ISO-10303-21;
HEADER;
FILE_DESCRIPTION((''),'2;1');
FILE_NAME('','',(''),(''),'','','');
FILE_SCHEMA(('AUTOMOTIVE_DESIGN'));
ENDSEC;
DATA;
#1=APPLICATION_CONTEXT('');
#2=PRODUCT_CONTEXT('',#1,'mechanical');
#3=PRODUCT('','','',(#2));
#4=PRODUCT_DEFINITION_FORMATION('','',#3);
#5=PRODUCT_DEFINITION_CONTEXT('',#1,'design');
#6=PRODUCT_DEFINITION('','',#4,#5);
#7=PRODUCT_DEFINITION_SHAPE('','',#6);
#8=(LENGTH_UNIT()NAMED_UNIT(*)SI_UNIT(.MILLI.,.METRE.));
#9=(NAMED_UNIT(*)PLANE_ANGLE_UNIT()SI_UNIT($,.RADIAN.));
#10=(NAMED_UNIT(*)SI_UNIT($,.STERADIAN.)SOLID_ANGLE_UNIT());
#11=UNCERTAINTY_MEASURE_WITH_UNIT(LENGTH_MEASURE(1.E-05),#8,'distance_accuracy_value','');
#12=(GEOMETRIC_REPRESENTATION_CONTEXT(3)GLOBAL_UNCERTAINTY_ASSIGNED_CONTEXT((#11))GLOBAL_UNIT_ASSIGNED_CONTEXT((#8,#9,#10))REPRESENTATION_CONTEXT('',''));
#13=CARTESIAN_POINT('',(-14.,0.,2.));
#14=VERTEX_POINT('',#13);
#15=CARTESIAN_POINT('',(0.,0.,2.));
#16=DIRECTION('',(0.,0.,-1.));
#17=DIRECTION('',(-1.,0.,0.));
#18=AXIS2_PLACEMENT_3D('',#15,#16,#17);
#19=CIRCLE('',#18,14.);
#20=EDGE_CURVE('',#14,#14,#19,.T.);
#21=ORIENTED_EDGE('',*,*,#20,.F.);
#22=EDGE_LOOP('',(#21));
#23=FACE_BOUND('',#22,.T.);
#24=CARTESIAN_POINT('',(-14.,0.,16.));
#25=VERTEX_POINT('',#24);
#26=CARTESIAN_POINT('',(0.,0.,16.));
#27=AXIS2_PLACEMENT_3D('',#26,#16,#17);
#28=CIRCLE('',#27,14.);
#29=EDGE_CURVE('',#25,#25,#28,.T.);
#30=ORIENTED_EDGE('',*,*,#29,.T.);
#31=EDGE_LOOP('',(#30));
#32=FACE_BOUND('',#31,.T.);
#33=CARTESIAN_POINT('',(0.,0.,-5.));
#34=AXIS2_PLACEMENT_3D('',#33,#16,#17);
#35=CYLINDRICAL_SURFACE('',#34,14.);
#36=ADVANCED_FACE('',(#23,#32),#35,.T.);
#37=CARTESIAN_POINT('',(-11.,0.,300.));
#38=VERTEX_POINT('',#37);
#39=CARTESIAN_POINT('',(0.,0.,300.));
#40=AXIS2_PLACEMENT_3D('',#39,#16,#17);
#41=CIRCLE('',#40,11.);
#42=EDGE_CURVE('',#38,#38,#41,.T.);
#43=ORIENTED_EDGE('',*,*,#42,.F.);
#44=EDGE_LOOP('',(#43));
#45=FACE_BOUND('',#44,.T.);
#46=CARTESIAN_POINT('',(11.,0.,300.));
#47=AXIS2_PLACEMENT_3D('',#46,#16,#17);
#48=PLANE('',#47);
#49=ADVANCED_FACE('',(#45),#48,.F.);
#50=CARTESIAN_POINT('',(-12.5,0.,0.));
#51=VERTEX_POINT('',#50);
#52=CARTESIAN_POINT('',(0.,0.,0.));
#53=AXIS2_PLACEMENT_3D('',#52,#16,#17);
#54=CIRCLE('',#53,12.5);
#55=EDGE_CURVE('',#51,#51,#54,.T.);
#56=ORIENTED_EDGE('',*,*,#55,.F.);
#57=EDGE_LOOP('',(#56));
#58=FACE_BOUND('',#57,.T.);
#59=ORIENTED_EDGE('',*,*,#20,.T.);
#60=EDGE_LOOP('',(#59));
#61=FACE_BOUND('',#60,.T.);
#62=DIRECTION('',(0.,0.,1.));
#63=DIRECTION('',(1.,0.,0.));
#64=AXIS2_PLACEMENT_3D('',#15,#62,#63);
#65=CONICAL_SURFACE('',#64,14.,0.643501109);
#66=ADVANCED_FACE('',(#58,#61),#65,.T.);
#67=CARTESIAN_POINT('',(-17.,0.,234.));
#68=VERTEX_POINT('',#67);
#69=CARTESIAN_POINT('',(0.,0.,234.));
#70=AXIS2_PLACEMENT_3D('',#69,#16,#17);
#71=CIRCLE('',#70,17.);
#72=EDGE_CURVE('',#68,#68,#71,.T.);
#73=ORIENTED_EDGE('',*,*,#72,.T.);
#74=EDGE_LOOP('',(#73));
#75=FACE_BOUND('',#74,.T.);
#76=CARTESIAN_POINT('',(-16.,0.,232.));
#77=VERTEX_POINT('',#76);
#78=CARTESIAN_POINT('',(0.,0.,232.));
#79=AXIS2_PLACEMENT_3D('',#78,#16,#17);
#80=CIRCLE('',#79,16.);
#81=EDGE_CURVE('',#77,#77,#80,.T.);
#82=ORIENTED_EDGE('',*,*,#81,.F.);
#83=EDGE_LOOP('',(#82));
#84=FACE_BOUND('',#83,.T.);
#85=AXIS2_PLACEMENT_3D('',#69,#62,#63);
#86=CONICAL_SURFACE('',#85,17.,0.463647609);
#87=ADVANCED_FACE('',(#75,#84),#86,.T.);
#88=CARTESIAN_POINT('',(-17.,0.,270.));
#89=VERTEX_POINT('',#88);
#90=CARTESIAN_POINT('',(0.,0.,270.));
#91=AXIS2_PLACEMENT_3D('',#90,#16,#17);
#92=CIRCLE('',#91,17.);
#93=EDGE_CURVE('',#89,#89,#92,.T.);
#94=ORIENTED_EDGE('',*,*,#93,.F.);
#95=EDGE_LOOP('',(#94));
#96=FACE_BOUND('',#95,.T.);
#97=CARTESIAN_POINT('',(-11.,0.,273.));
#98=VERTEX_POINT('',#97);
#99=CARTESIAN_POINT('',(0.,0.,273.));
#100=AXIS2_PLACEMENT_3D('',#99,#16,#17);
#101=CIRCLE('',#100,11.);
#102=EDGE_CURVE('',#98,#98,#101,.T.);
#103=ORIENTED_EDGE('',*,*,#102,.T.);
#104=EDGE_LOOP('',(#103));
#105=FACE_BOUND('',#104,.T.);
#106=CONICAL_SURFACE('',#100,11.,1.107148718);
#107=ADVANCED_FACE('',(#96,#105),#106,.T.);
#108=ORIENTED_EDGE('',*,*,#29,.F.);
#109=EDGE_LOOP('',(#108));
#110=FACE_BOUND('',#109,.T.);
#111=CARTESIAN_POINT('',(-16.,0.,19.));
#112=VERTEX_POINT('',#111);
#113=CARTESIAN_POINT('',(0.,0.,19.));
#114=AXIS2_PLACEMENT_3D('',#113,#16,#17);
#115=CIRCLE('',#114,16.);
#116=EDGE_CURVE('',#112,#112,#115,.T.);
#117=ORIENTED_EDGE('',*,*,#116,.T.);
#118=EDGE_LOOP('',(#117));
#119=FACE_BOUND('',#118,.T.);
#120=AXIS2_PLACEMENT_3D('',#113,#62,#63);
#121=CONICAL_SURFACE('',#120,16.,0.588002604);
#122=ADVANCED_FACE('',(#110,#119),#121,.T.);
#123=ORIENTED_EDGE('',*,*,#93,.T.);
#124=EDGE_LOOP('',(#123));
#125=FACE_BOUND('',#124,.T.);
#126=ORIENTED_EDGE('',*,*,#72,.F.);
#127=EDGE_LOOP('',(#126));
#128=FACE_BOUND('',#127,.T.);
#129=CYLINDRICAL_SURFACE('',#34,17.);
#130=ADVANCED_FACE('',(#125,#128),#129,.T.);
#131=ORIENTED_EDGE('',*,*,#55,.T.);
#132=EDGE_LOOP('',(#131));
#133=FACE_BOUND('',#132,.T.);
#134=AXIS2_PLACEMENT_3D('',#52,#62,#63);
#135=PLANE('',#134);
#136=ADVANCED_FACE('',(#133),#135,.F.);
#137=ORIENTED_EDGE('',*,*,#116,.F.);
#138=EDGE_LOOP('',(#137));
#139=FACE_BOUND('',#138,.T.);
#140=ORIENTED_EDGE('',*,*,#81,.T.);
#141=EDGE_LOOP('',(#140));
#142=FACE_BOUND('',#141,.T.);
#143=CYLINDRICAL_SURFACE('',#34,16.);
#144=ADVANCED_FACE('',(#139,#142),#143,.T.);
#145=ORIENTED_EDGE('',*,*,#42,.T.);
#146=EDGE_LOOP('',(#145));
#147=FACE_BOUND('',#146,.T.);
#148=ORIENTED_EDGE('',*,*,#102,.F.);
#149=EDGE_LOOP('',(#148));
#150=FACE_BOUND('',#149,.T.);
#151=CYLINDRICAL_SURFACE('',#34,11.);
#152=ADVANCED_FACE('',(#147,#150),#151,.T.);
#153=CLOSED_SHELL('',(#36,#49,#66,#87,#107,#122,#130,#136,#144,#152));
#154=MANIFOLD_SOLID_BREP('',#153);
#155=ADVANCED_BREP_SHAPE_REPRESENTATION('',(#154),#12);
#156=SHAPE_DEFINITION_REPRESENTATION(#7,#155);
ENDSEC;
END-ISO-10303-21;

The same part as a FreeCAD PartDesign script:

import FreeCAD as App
import Part
import Sketcher
from FreeCAD import Vector
Q = App.Units.Quantity

doc = App.newDocument("Part")
body = doc.addObject("PartDesign::Body", "Body")

# Sketch on XZ plane
sketch1 = doc.addObject("Sketcher::SketchObject", "Sketch")
body.addObject(sketch1)
sketch1.AttachmentSupport = (doc.XZ_Plane, [""])
sketch1.MapMode = "FlatFace"
sketch1.addGeometry(Part.LineSegment(Vector(0, 0, 0), Vector(0, 300, 0)), False)
sketch1.addGeometry(Part.LineSegment(Vector(0, 300, 0), Vector(11, 300, 0)), False)
sketch1.addGeometry(Part.LineSegment(Vector(11, 300, 0), Vector(11, 273, 0)), False)
sketch1.addGeometry(Part.LineSegment(Vector(11, 273, 0), Vector(17, 270, 0)), False)
sketch1.addGeometry(Part.LineSegment(Vector(17, 270, 0), Vector(17, 234, 0)), False)
sketch1.addGeometry(Part.LineSegment(Vector(17, 234, 0), Vector(16, 232, 0)), False)
sketch1.addGeometry(Part.LineSegment(Vector(16, 232, 0), Vector(16, 19, 0)), False)
sketch1.addGeometry(Part.LineSegment(Vector(16, 19, 0), Vector(14, 16, 0)), False)
sketch1.addGeometry(Part.LineSegment(Vector(14, 16, 0), Vector(14, 2, 0)), False)
sketch1.addGeometry(Part.LineSegment(Vector(14, 2, 0), Vector(12.5, 0, 0)), False)
sketch1.addGeometry(Part.LineSegment(Vector(12.5, 0, 0), Vector(0, 0, 0)), False)
sketch1.addConstraint(Sketcher.Constraint("Coincident", 0, 2, 1, 1))
sketch1.addConstraint(Sketcher.Constraint("Coincident", 1, 2, 2, 1))
sketch1.addConstraint(Sketcher.Constraint("Coincident", 2, 2, 3, 1))
sketch1.addConstraint(Sketcher.Constraint("Coincident", 3, 2, 4, 1))
sketch1.addConstraint(Sketcher.Constraint("Coincident", 4, 2, 5, 1))
sketch1.addConstraint(Sketcher.Constraint("Coincident", 5, 2, 6, 1))
sketch1.addConstraint(Sketcher.Constraint("Coincident", 6, 2, 7, 1))
sketch1.addConstraint(Sketcher.Constraint("Coincident", 7, 2, 8, 1))
sketch1.addConstraint(Sketcher.Constraint("Coincident", 8, 2, 9, 1))
sketch1.addConstraint(Sketcher.Constraint("Coincident", 9, 2, 10, 1))
sketch1.addConstraint(Sketcher.Constraint("Coincident", 10, 2, 0, 1))
sketch1.addConstraint(Sketcher.Constraint("Vertical", 0))
sketch1.addConstraint(Sketcher.Constraint("Horizontal", 1))
sketch1.addConstraint(Sketcher.Constraint("Vertical", 2))
sketch1.addConstraint(Sketcher.Constraint("Vertical", 4))
sketch1.addConstraint(Sketcher.Constraint("Vertical", 6))
sketch1.addConstraint(Sketcher.Constraint("Vertical", 8))
sketch1.addConstraint(Sketcher.Constraint("Horizontal", 10))
sketch1.addConstraint(Sketcher.Constraint("Coincident", 10, 2, -1, 1))
sketch1.addConstraint(Sketcher.Constraint("Perpendicular", 3, 5))
sketch1.addConstraint(Sketcher.Constraint("DistanceX", 1, 1, 1, 2, Q("11 mm")))
sketch1.addConstraint(Sketcher.Constraint("DistanceY", 0, 1, 0, 2, Q("300 mm")))
sketch1.addConstraint(Sketcher.Constraint("DistanceY", 2, 2, 2, 1, Q("27 mm")))
sketch1.addConstraint(Sketcher.Constraint("DistanceY", 4, 2, 4, 1, Q("36 mm")))
sketch1.addConstraint(Sketcher.Constraint("DistanceY", 6, 2, 6, 1, Q("213 mm")))
sketch1.addConstraint(Sketcher.Constraint("DistanceY", 8, 2, 8, 1, Q("14 mm")))
sketch1.addConstraint(Sketcher.Constraint("DistanceX", 10, 2, 10, 1, Q("12.5 mm")))
sketch1.addConstraint(Sketcher.Constraint("DistanceX", -1, 1, 3, 2, Q("17 mm")))
sketch1.addConstraint(Sketcher.Constraint("DistanceY", -1, 1, 3, 2, Q("270 mm")))
sketch1.addConstraint(Sketcher.Constraint("DistanceX", -1, 1, 5, 2, Q("16 mm")))
sketch1.addConstraint(Sketcher.Constraint("DistanceX", -1, 1, 7, 2, Q("14 mm")))
sketch1.addConstraint(Sketcher.Constraint("DistanceY", -1, 1, 7, 2, Q("16 mm")))
revolution = doc.addObject("PartDesign::Revolution", "Revolution")
body.addObject(revolution)
revolution.Profile = sketch1
revolution.ReferenceAxis = (sketch1, ["V_Axis"])
revolution.Angle = 360

doc.recompute()
